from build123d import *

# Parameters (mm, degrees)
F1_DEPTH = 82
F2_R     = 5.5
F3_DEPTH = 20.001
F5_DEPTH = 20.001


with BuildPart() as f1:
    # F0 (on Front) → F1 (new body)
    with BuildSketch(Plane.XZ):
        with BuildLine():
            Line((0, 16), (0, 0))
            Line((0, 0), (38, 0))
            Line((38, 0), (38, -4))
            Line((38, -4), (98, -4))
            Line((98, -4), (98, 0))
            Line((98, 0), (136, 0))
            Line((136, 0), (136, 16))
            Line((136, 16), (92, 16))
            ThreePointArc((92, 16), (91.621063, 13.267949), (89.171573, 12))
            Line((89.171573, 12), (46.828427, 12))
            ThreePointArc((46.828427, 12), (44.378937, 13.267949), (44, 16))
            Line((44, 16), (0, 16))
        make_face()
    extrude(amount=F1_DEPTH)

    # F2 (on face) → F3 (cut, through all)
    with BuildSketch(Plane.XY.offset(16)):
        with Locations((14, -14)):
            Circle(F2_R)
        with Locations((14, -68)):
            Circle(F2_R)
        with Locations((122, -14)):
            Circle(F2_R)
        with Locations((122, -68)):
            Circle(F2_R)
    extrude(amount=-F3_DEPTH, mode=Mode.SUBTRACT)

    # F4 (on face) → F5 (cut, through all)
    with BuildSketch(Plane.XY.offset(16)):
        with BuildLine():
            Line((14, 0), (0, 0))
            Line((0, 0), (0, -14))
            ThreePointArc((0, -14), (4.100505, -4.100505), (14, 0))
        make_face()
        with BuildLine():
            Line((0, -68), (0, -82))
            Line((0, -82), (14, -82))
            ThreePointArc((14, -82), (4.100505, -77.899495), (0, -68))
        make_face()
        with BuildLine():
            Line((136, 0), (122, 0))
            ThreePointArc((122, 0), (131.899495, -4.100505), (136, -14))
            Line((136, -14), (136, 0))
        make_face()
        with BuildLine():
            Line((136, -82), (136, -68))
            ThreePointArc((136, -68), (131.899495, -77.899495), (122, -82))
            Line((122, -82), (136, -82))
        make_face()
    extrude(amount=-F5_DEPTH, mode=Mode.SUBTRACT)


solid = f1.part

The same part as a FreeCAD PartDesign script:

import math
import FreeCAD as App
import Part
import Sketcher

V = App.Vector
Q = App.Units.Quantity

doc = App.newDocument("Part")
body = doc.addObject("PartDesign::Body", "Body")

sketch1 = doc.addObject("Sketcher::SketchObject", "Sketch")
body.addObject(sketch1)
sketch1.AttachmentSupport = (doc.XZ_Plane, [""])
sketch1.MapMode = "FlatFace"
sketch1.addGeometry(Part.LineSegment(V(0, 16, 0), V(0, 0, 0)), False)
sketch1.addGeometry(Part.LineSegment(V(0, 0, 0), V(38, 0, 0)), False)
sketch1.addGeometry(Part.LineSegment(V(38, 0, 0), V(38, -4, 0)), False)
sketch1.addGeometry(Part.LineSegment(V(38, -4, 0), V(98, -4, 0)), False)
sketch1.addGeometry(Part.LineSegment(V(98, -4, 0), V(98, 0, 0)), False)
sketch1.addGeometry(Part.LineSegment(V(98, 0, 0), V(136, 0, 0)), False)
sketch1.addGeometry(Part.LineSegment(V(136, 0, 0), V(136, 16, 0)), False)
sketch1.addGeometry(Part.LineSegment(V(136, 16, 0), V(92, 16, 0)), False)
sketch1.addGeometry(Part.ArcOfCircle(Part.Circle(V(89.2, 15, 0), V(0, 0, 1), 3), math.radians(-90), math.radians(19)), False)
sketch1.addGeometry(Part.LineSegment(V(89.2, 12, 0), V(46.8, 12, 0)), False)
sketch1.addGeometry(Part.ArcOfCircle(Part.Circle(V(46.8, 15, 0), V(0, 0, 1), 3), math.radians(161), math.radians(270)), False)
sketch1.addGeometry(Part.LineSegment(V(44, 16, 0), V(0, 16, 0)), False)
sketch1.addConstraint(Sketcher.Constraint("Coincident", 0, 2, 1, 1))
sketch1.addConstraint(Sketcher.Constraint("Coincident", 1, 2, 2, 1))
sketch1.addConstraint(Sketcher.Constraint("Coincident", 2, 2, 3, 1))
sketch1.addConstraint(Sketcher.Constraint("Coincident", 3, 2, 4, 1))
sketch1.addConstraint(Sketcher.Constraint("Coincident", 4, 2, 5, 1))
sketch1.addConstraint(Sketcher.Constraint("Coincident", 5, 2, 6, 1))
sketch1.addConstraint(Sketcher.Constraint("Coincident", 6, 2, 7, 1))
sketch1.addConstraint(Sketcher.Constraint("Coincident", 7, 2, 8, 2))
sketch1.addConstraint(Sketcher.Constraint("Tangent", 8, 1, 9, 1))
sketch1.addConstraint(Sketcher.Constraint("Tangent", 9, 2, 10, 2))
sketch1.addConstraint(Sketcher.Constraint("Coincident", 10, 1, 11, 1))
sketch1.addConstraint(Sketcher.Constraint("Coincident", 11, 2, 0, 1))
sketch1.addConstraint(Sketcher.Constraint("Vertical", 0))
sketch1.addConstraint(Sketcher.Constraint("Horizontal", 1))
sketch1.addConstraint(Sketcher.Constraint("Vertical", 2))
sketch1.addConstraint(Sketcher.Constraint("Horizontal", 3))
sketch1.addConstraint(Sketcher.Constraint("Vertical", 4))
sketch1.addConstraint(Sketcher.Constraint("Horizontal", 5))
sketch1.addConstraint(Sketcher.Constraint("Vertical", 6))
sketch1.addConstraint(Sketcher.Constraint("Horizontal", 7))
sketch1.addConstraint(Sketcher.Constraint("Horizontal", 9))
sketch1.addConstraint(Sketcher.Constraint("Horizontal", 11))
sketch1.addConstraint(Sketcher.Constraint("Coincident", 0, 2, -1, 1))
sketch1.addConstraint(Sketcher.Constraint("Equal", 8, 10))
sketch1.addConstraint(Sketcher.Constraint("PointOnObject", 4, 2, -1))
sketch1.addConstraint(Sketcher.Constraint("Horizontal", 7, 2, 10, 1))
sketch1.addConstraint(Sketcher.Constraint("Equal", 1, 5))
sketch1.addConstraint(Sketcher.Constraint("Equal", 7, 11))
sketch1.addConstraint(Sketcher.Constraint("Radius", 8, Q("2.999999 mm")))
sketch1.addConstraint(Sketcher.Constraint("DistanceX", 1, 1, 1, 2, Q("38 mm")))
sketch1.addConstraint(Sketcher.Constraint("DistanceX", 3, 1, 3, 2, Q("60 mm")))
sketch1.addConstraint(Sketcher.Constraint("DistanceX", 7, 2, 7, 1, Q("44 mm")))
sketch1.addConstraint(Sketcher.Constraint("DistanceY", 0, 2, 0, 1, Q("16 mm")))
sketch1.addConstraint(Sketcher.Constraint("DistanceY", 2, 2, 2, 1, Q("4 mm")))
sketch1.addConstraint(Sketcher.Constraint("DistanceY", -1, 1, 8, 3, Q("14.999999 mm")))
pad1 = doc.addObject("PartDesign::Pad", "Pad")
body.addObject(pad1)
pad1.Profile = sketch1
pad1.Length = 82

sketch2 = doc.addObject("Sketcher::SketchObject", "Sketch001")
body.addObject(sketch2)
sketch2.AttachmentSupport = (doc.XY_Plane, [""])
sketch2.MapMode = "FlatFace"
sketch2.AttachmentOffset = App.Placement(V(0, 0, 16), App.Rotation())
sketch2.addGeometry(Part.Circle(V(14, -14, 0), V(0, 0, 1), 6), False)
sketch2.addGeometry(Part.Circle(V(14, -68, 0), V(0, 0, 1), 6), False)
sketch2.addGeometry(Part.Circle(V(122, -14, 0), V(0, 0, 1), 6), False)
sketch2.addGeometry(Part.Circle(V(122, -68, 0), V(0, 0, 1), 6), False)
sketch2.addConstraint(Sketcher.Constraint("Equal", 0, 1))
sketch2.addConstraint(Sketcher.Constraint("Equal", 1, 2))
sketch2.addConstraint(Sketcher.Constraint("Equal", 2, 3))
sketch2.addConstraint(Sketcher.Constraint("Horizontal", 0, 3, 2, 3))
sketch2.addConstraint(Sketcher.Constraint("Horizontal", 1, 3, 3, 3))
sketch2.addConstraint(Sketcher.Constraint("Vertical", 0, 3, 1, 3))
sketch2.addConstraint(Sketcher.Constraint("Vertical", 2, 3, 3, 3))
sketch2.addConstraint(Sketcher.Constraint("Diameter", 0, Q("11 mm")))
sketch2.addConstraint(Sketcher.Constraint("DistanceX", -1, 1, 0, 3, Q("14 mm")))
sketch2.addConstraint(Sketcher.Constraint("DistanceY", 0, 3, -1, 1, Q("14 mm")))
sketch2.addConstraint(Sketcher.Constraint("DistanceY", 1, 3, -1, 1, Q("68 mm")))
sketch2.addConstraint(Sketcher.Constraint("DistanceX", -1, 1, 2, 3, Q("122 mm")))
pocket1 = doc.addObject("PartDesign::Pocket", "Pocket")
body.addObject(pocket1)
pocket1.Profile = sketch2
pocket1.Type = "ThroughAll"

sketch3 = doc.addObject("Sketcher::SketchObject", "Sketch002")
body.addObject(sketch3)
sketch3.AttachmentSupport = (doc.XY_Plane, [""])
sketch3.MapMode = "FlatFace"
sketch3.AttachmentOffset = App.Placement(V(0, 0, 16), App.Rotation())
sketch3.addGeometry(Part.LineSegment(V(14, 0, 0), V(0, 0, 0)), False)
sketch3.addGeometry(Part.LineSegment(V(0, 0, 0), V(0, -14, 0)), False)
sketch3.addGeometry(Part.ArcOfCircle(Part.Circle(V(14, -14, 0), V(0, 0, 1), 14), math.radians(90), math.radians(180)), False)
sketch3.addGeometry(Part.LineSegment(V(0, -68, 0), V(0, -82, 0)), False)
sketch3.addGeometry(Part.LineSegment(V(0, -82, 0), V(14, -82, 0)), False)
sketch3.addGeometry(Part.ArcOfCircle(Part.Circle(V(14, -68, 0), V(0, 0, 1), 14), math.radians(180), math.radians(270)), False)
sketch3.addGeometry(Part.LineSegment(V(136, 0, 0), V(122, 0, 0)), False)
sketch3.addGeometry(Part.ArcOfCircle(Part.Circle(V(122, -14, 0), V(0, 0, 1), 14), math.radians(0), math.radians(90)), False)
sketch3.addGeometry(Part.LineSegment(V(136, -14, 0), V(136, 0, 0)), False)
sketch3.addGeometry(Part.LineSegment(V(136, -82, 0), V(136, -68, 0)), False)
sketch3.addGeometry(Part.ArcOfCircle(Part.Circle(V(122, -68, 0), V(0, 0, 1), 14), math.radians(-90), math.radians(0)), False)
sketch3.addGeometry(Part.LineSegment(V(122, -82, 0), V(136, -82, 0)), False)
sketch3.addConstraint(Sketcher.Constraint("Coincident", 0, 2, 1, 1))
sketch3.addConstraint(Sketcher.Constraint("Tangent", 1, 2, 2, 2))
sketch3.addConstraint(Sketcher.Constraint("Tangent", 2, 1, 0, 1))
sketch3.addConstraint(Sketcher.Constraint("Coincident", 3, 2, 4, 1))
sketch3.addConstraint(Sketcher.Constraint("Tangent", 4, 2, 5, 2))
sketch3.addConstraint(Sketcher.Constraint("Tangent", 5, 1, 3, 1))
sketch3.addConstraint(Sketcher.Constraint("Tangent", 6, 2, 7, 2))
sketch3.addConstraint(Sketcher.Constraint("Tangent", 7, 1, 8, 1))
sketch3.addConstraint(Sketcher.Constraint("Coincident", 8, 2, 6, 1))
sketch3.addConstraint(Sketcher.Constraint("Tangent", 9, 2, 10, 2))
sketch3.addConstraint(Sketcher.Constraint("Tangent", 10, 1, 11, 1))
sketch3.addConstraint(Sketcher.Constraint("Coincident", 11, 2, 9, 1))
sketch3.addConstraint(Sketcher.Constraint("Horizontal", 0))
sketch3.addConstraint(Sketcher.Constraint("Vertical", 1))
sketch3.addConstraint(Sketcher.Constraint("Vertical", 3))
sketch3.addConstraint(Sketcher.Constraint("Horizontal", 4))
sketch3.addConstraint(Sketcher.Constraint("Horizontal", 6))
sketch3.addConstraint(Sketcher.Constraint("Vertical", 8))
sketch3.addConstraint(Sketcher.Constraint("Vertical", 9))
sketch3.addConstraint(Sketcher.Constraint("Horizontal", 11))
sketch3.addConstraint(Sketcher.Constraint("Coincident", 0, 2, -1, 1))
sketch3.addConstraint(Sketcher.Constraint("Equal", 2, 5))
sketch3.addConstraint(Sketcher.Constraint("Equal", 5, 7))
sketch3.addConstraint(Sketcher.Constraint("Equal", 7, 10))
sketch3.addConstraint(Sketcher.Constraint("PointOnObject", 3, 2, -2))
sketch3.addConstraint(Sketcher.Constraint("PointOnObject", 6, 2, -1))
sketch3.addConstraint(Sketcher.Constraint("Horizontal", 5, 3, 10, 3))
sketch3.addConstraint(Sketcher.Constraint("Vertical", 7, 3, 10, 3))
sketch3.addConstraint(Sketcher.Constraint("Radius", 2, Q("14 mm")))
sketch3.addConstraint(Sketcher.Constraint("DistanceY", 5, 3, -1, 1, Q("68 mm")))
sketch3.addConstraint(Sketcher.Constraint("DistanceX", -1, 1, 7, 3, Q("122 mm")))
pocket2 = doc.addObject("PartDesign::Pocket", "Pocket001")
body.addObject(pocket2)
pocket2.Profile = sketch3
pocket2.Type = "ThroughAll"

doc.recompute()
